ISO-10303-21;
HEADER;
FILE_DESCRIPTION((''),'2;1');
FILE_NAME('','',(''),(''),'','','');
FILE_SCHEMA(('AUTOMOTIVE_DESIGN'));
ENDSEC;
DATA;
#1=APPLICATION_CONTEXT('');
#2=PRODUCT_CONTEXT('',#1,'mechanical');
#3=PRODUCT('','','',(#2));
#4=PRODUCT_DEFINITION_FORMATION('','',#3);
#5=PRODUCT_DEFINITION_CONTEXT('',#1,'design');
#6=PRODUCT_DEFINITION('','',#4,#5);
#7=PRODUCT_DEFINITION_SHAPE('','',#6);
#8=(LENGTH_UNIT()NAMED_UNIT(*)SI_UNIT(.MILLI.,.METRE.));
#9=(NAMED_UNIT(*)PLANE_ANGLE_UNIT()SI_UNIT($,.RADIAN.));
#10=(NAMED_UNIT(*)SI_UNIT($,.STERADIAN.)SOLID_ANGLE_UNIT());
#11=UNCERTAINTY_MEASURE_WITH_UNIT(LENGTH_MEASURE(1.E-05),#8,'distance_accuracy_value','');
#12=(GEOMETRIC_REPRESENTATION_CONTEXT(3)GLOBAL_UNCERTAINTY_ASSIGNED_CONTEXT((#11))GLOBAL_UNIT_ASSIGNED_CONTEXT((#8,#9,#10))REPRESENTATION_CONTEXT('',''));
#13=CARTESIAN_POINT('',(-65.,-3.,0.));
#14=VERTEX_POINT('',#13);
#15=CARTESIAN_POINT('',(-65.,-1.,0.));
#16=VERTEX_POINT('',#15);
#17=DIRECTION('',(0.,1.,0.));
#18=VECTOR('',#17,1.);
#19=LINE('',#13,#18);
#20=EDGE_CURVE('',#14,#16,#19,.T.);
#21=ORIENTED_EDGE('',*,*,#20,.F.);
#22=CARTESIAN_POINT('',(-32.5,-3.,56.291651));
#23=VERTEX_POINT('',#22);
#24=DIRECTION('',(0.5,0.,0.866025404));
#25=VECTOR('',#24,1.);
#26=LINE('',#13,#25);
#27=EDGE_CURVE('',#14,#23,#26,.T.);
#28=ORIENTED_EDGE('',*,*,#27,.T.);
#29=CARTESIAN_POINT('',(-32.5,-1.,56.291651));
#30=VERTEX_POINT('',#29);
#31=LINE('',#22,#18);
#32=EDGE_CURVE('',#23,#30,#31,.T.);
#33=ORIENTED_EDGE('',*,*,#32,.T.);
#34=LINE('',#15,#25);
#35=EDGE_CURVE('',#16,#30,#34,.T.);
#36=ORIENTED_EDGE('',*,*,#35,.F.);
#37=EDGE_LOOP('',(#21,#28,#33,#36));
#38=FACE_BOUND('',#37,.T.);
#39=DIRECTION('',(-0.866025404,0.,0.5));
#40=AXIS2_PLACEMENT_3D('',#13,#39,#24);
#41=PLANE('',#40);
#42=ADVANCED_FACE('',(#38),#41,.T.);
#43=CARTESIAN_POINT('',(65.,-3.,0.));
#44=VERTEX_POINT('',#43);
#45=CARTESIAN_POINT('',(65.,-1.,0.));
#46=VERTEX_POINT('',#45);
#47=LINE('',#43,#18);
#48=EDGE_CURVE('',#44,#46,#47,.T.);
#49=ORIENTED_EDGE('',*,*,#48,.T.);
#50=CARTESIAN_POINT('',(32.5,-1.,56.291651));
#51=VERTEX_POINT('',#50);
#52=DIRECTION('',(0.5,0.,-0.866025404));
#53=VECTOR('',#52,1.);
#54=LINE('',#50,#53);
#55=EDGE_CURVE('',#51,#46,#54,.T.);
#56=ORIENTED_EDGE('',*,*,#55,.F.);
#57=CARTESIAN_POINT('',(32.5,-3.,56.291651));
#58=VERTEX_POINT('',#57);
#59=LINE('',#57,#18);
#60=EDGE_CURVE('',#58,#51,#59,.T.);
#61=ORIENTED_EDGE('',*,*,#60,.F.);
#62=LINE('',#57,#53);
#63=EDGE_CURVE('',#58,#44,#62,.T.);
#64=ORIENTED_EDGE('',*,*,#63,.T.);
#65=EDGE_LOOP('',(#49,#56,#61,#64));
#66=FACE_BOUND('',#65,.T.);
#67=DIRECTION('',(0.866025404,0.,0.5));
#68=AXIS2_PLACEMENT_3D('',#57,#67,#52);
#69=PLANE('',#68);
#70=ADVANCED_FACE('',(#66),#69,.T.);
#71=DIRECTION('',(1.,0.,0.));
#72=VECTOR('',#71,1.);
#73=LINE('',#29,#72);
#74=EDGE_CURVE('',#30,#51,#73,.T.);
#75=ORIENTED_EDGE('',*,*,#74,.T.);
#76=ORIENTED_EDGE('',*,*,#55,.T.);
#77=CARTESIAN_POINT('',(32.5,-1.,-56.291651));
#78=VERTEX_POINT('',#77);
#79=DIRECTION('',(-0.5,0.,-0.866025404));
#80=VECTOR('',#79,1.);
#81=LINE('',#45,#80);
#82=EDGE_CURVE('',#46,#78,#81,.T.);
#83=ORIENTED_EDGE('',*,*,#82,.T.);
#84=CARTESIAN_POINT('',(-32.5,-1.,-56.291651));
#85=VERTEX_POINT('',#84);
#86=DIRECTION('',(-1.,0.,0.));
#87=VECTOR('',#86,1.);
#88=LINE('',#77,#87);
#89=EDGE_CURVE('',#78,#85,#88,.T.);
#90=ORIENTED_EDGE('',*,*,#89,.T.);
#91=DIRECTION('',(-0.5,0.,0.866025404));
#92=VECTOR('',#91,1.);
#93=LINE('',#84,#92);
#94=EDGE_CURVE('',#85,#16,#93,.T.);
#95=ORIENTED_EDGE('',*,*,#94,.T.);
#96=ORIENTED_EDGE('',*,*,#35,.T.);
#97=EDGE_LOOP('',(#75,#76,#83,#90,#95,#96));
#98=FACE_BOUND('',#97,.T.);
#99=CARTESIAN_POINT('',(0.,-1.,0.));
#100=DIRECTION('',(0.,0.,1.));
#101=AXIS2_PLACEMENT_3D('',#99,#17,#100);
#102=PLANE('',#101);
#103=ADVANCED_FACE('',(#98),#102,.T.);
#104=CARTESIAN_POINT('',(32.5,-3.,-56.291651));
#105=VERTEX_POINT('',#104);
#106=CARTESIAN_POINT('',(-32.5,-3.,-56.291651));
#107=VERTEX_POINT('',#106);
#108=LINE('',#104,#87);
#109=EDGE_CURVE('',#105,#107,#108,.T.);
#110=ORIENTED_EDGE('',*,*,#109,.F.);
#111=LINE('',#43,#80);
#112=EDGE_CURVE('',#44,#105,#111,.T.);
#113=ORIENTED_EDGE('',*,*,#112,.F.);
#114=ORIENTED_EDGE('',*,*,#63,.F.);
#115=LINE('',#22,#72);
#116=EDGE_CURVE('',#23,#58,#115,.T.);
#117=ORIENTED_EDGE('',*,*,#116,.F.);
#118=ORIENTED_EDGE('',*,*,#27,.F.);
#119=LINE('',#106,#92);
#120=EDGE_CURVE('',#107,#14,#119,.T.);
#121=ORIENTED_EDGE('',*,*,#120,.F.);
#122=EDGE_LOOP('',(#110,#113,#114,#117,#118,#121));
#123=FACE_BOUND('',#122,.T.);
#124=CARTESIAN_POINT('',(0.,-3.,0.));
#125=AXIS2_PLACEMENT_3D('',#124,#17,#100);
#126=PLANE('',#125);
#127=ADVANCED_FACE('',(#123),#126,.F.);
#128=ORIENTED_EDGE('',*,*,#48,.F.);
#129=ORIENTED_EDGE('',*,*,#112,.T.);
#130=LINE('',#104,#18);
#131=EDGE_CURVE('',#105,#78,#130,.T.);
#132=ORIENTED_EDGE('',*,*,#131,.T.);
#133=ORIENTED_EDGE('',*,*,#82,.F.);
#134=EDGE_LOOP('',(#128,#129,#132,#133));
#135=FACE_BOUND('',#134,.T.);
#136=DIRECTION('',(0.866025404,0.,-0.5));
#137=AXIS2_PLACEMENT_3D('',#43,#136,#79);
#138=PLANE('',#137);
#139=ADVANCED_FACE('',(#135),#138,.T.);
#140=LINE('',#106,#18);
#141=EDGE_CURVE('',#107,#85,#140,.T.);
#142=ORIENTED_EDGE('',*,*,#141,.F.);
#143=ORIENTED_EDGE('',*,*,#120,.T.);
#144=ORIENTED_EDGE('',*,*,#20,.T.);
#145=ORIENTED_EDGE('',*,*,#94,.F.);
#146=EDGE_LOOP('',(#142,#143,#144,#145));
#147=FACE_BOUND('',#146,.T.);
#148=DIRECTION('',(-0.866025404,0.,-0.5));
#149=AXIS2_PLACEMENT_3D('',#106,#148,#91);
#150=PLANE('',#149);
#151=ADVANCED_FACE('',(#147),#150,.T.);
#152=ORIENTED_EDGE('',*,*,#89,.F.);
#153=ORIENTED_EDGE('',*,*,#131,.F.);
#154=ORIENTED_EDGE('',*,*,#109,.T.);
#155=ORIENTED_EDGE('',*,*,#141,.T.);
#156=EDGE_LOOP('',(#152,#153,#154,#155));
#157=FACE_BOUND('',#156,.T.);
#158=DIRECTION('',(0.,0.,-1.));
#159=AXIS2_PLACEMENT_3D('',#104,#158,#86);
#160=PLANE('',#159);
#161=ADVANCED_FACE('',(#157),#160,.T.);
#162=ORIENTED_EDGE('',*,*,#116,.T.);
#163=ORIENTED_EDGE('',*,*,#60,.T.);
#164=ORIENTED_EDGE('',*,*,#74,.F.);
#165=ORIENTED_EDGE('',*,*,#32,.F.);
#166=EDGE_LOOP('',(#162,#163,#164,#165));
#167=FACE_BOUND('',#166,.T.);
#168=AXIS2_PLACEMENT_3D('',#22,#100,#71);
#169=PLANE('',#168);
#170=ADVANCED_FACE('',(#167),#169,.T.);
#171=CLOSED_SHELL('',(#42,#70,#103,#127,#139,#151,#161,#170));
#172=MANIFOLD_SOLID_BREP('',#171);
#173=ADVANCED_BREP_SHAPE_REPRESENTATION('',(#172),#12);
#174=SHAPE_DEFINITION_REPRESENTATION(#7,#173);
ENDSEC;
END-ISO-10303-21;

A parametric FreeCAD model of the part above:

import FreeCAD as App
import Part
import Sketcher
Q = App.Units.Quantity

doc = App.newDocument("Part")
body = doc.addObject("PartDesign::Body", "Body")

sketch1 = doc.addObject("Sketcher::SketchObject", "Sketch")
body.addObject(sketch1)
sketch1.AttachmentSupport = (doc.XZ_Plane, [""])
sketch1.MapMode = "FlatFace"
sketch1.AttachmentOffset = App.Placement(App.Vector(0, 0, 1), App.Rotation())
sketch1.addGeometry([
    Part.LineSegment(App.Vector(65, 0, 0), App.Vector(32.5, -56.291651, 0)),
    Part.LineSegment(App.Vector(32.5, -56.291651, 0), App.Vector(-32.5, -56.291651, 0)),
    Part.LineSegment(App.Vector(-32.5, -56.291651, 0), App.Vector(-65, 0, 0)),
    Part.LineSegment(App.Vector(-65, 0, 0), App.Vector(-32.5, 56.291651, 0)),
    Part.LineSegment(App.Vector(-32.5, 56.291651, 0), App.Vector(32.5, 56.291651, 0)),
    Part.LineSegment(App.Vector(32.5, 56.291651, 0), App.Vector(65, 0, 0)),
], False)
sketch1.addConstraint([
    Sketcher.Constraint("Coincident", 0, 2, 1, 1),
    Sketcher.Constraint("Coincident", 1, 2, 2, 1),
    Sketcher.Constraint("Coincident", 2, 2, 3, 1),
    Sketcher.Constraint("Coincident", 3, 2, 4, 1),
    Sketcher.Constraint("Coincident", 4, 2, 5, 1),
    Sketcher.Constraint("Coincident", 5, 2, 0, 1),
    Sketcher.Constraint("Horizontal", 1),
    Sketcher.Constraint("Horizontal", 4),
    Sketcher.Constraint("Symmetric", 0, 2, 3, 2, -1, 1),
    Sketcher.Constraint("Symmetric", 2, 2, 5, 2, -1, 1),
    Sketcher.Constraint("PointOnObject", 2, 2, -1),
    Sketcher.Constraint("Parallel", 2, 5),
    Sketcher.Constraint("Vertical", 1, 2, 3, 2),
    Sketcher.Constraint("DistanceX", 1, 2, 1, 1, 65.0),
    Sketcher.Constraint("Angle", 0, Q("-120 deg")),
    Sketcher.Constraint("Distance", 0, 65.0),
])
pad1 = doc.addObject("PartDesign::Pad", "Pad")
body.addObject(pad1)
pad1.Profile = sketch1
pad1.Length = 2

doc.recompute()
